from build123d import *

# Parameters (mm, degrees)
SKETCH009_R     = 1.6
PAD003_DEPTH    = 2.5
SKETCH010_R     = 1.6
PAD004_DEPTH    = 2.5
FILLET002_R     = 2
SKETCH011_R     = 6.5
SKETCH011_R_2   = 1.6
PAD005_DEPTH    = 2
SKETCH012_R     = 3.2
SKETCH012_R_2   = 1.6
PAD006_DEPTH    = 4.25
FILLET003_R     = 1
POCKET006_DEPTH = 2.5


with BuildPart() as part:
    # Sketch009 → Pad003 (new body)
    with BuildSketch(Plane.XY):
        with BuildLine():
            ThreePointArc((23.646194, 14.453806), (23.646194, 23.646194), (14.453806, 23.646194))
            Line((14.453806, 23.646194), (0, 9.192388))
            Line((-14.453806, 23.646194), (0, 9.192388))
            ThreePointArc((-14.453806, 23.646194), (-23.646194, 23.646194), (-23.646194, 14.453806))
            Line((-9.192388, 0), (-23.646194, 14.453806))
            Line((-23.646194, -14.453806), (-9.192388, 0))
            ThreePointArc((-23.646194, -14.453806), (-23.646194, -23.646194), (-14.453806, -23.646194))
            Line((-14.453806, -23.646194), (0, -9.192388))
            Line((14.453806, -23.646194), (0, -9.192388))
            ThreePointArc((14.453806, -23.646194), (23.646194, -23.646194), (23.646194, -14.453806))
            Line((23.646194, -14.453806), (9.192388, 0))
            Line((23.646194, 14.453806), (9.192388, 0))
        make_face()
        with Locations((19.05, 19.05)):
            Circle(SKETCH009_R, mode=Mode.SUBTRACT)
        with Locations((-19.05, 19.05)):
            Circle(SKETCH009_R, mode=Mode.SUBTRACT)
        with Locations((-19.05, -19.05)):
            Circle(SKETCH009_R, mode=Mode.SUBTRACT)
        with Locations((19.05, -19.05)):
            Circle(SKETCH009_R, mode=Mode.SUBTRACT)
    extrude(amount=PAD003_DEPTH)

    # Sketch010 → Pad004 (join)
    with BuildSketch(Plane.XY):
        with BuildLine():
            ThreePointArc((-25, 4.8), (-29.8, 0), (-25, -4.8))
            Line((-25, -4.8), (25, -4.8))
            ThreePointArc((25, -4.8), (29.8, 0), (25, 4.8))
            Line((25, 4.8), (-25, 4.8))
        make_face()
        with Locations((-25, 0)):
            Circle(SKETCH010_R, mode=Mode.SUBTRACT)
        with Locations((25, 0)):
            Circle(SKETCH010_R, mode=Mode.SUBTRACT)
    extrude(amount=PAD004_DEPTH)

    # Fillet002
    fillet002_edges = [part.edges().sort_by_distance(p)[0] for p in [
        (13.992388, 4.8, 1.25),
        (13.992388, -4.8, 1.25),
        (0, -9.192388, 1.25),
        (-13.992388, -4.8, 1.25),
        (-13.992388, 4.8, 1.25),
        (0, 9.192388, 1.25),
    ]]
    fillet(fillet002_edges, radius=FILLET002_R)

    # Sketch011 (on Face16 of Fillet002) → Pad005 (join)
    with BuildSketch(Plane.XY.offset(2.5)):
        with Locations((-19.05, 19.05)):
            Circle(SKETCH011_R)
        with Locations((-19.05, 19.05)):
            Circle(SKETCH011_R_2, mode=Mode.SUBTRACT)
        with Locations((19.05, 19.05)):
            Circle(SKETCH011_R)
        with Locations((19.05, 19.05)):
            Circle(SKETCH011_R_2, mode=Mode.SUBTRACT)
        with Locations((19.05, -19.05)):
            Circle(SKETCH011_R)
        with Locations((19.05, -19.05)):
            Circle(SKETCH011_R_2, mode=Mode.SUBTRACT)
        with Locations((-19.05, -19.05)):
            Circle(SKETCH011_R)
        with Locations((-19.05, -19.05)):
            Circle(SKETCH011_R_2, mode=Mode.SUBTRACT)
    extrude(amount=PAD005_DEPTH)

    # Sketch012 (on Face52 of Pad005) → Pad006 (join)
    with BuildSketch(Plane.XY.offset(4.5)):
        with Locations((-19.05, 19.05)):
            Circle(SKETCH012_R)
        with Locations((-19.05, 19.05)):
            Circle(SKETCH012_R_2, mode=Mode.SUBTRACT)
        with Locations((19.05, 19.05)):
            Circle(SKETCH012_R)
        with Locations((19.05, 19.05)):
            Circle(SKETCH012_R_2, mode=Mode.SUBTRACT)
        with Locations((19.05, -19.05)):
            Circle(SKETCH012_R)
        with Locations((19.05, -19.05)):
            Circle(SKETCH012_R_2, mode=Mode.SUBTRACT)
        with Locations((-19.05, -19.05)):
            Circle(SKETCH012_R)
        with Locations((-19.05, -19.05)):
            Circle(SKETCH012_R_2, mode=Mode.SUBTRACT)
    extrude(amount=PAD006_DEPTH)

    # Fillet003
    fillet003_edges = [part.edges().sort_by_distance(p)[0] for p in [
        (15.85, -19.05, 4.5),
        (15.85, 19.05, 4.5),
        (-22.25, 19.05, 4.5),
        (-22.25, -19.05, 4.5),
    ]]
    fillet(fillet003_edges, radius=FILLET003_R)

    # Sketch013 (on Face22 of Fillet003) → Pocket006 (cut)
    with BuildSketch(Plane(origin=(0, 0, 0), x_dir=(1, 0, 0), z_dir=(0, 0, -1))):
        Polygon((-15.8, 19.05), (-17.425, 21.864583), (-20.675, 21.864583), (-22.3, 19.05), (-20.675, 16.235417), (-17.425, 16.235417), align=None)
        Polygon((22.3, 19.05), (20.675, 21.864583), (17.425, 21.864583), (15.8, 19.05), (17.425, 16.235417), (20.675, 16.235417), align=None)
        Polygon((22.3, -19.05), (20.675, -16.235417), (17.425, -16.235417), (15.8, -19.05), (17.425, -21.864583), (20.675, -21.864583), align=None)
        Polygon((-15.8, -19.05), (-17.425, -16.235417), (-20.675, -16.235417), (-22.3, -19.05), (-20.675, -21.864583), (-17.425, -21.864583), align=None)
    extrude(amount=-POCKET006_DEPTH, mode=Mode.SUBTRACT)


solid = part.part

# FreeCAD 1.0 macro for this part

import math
import FreeCAD as App
import Part
import Sketcher
Q = App.Units.Quantity


def edges_at(feature, points):
    """Names of the edges that pass closest to the given points."""
    edges = feature.Shape.Edges
    near = lambda p: min(range(len(edges)), key=lambda i: edges[i].distToShape(Part.Vertex(*p))[0])
    return sorted({f"Edge{near(p) + 1}" for p in points})

doc = App.newDocument("Part")
body = doc.addObject("PartDesign::Body", "Body")

sketch1 = doc.addObject("Sketcher::SketchObject", "Sketch")
body.addObject(sketch1)
sketch1.AttachmentSupport = (doc.XY_Plane, [""])
sketch1.MapMode = "FlatFace"
sketch1.addGeometry([
    Part.ArcOfCircle(Part.Circle(App.Vector(19.1, 19.1, 0), App.Vector(0, 0, 1), 6.5), math.radians(-45), math.radians(135)),
    Part.LineSegment(App.Vector(14.5, 23.6, 0), App.Vector(0, 9.2, 0)),
    Part.LineSegment(App.Vector(0, 9.2, 0), App.Vector(-14.5, 23.6, 0)),
    Part.ArcOfCircle(Part.Circle(App.Vector(-19.1, 19.1, 0), App.Vector(0, 0, 1), 6.5), math.radians(45), math.radians(225)),
    Part.LineSegment(App.Vector(-23.6, 14.5, 0), App.Vector(-9.2, 0, 0)),
    Part.LineSegment(App.Vector(-9.2, 0, 0), App.Vector(-23.6, -14.5, 0)),
    Part.ArcOfCircle(Part.Circle(App.Vector(-19.1, -19.1, 0), App.Vector(0, 0, 1), 6.5), math.radians(135), math.radians(315)),
    Part.LineSegment(App.Vector(-14.5, -23.6, 0), App.Vector(0, -9.2, 0)),
    Part.LineSegment(App.Vector(0, -9.2, 0), App.Vector(14.5, -23.6, 0)),
    Part.ArcOfCircle(Part.Circle(App.Vector(19.1, -19.1, 0), App.Vector(0, 0, 1), 6.5), math.radians(-135), math.radians(45)),
    Part.LineSegment(App.Vector(23.6, -14.5, 0), App.Vector(9.2, 0, 0)),
    Part.LineSegment(App.Vector(9.2, 0, 0), App.Vector(23.6, 14.5, 0)),
    Part.Circle(App.Vector(-19.1, -19.1, 0), App.Vector(0, 0, 1), 1.6),
    Part.Circle(App.Vector(19.1, -19.1, 0), App.Vector(0, 0, 1), 1.6),
    Part.Circle(App.Vector(-19.1, 19.1, 0), App.Vector(0, 0, 1), 1.6),
    Part.Circle(App.Vector(19.1, 19.1, 0), App.Vector(0, 0, 1), 1.6),
], False)
sketch1.addConstraint([
    Sketcher.Constraint("Tangent", 0, 2, 1, 1),
    Sketcher.Constraint("Coincident", 1, 2, 2, 1),
    Sketcher.Constraint("Tangent", 2, 2, 3, 1),
    Sketcher.Constraint("Tangent", 3, 2, 4, 1),
    Sketcher.Constraint("Coincident", 4, 2, 5, 1),
    Sketcher.Constraint("Tangent", 5, 2, 6, 1),
    Sketcher.Constraint("Tangent", 6, 2, 7, 1),
    Sketcher.Constraint("Coincident", 7, 2, 8, 1),
    Sketcher.Constraint("Tangent", 8, 2, 9, 1),
    Sketcher.Constraint("Tangent", 9, 2, 10, 1),
    Sketcher.Constraint("Coincident", 10, 2, 11, 1),
    Sketcher.Constraint("Tangent", 11, 2, 0, 1),
    Sketcher.Constraint("Coincident", 12, 3, 6, 3),
    Sketcher.Constraint("Coincident", 13, 3, 9, 3),
    Sketcher.Constraint("Coincident", 14, 3, 3, 3),
    Sketcher.Constraint("Coincident", 15, 3, 0, 3),
    Sketcher.Constraint("Equal", 0, 3),
    Sketcher.Constraint("Equal", 3, 6),
    Sketcher.Constraint("Equal", 6, 9),
    Sketcher.Constraint("Equal", 12, 13),
    Sketcher.Constraint("Equal", 13, 14),
    Sketcher.Constraint("Equal", 14, 15),
    Sketcher.Constraint("Symmetric", 0, 3, 6, 3, -1, 1),
    Sketcher.Constraint("Symmetric", 3, 3, 9, 3, -1, 1),
    Sketcher.Constraint("Symmetric", 1, 2, 7, 2, -1, 1),
    Sketcher.Constraint("Symmetric", 4, 2, 10, 2, -1, 1),
    Sketcher.Constraint("Symmetric", 0, 3, 3, 3, -2),
    Sketcher.Constraint("PointOnObject", 1, 2, -2),
    Sketcher.Constraint("PointOnObject", 4, 2, -1),
    Sketcher.Constraint("Perpendicular", 1, 2),
    Sketcher.Constraint("Parallel", 2, 4),
    Sketcher.Constraint("Equal", 2, 4),
    Sketcher.Constraint("Diameter", 12, 3.2),
    Sketcher.Constraint("Radius", 0, 6.5),
    Sketcher.Constraint("DistanceX", 3, 3, 0, 3, 38.1),
])
pad1 = doc.addObject("PartDesign::Pad", "Pad")
body.addObject(pad1)
pad1.Profile = sketch1
pad1.Length = 2.5

sketch2 = doc.addObject("Sketcher::SketchObject", "Sketch001")
body.addObject(sketch2)
sketch2.AttachmentSupport = (doc.XY_Plane, [""])
sketch2.MapMode = "FlatFace"
sketch2.addGeometry([
    Part.ArcOfCircle(Part.Circle(App.Vector(-25, 0, 0), App.Vector(0, 0, 1), 4.8), math.radians(90), math.radians(270)),
    Part.LineSegment(App.Vector(-25, -4.8, 0), App.Vector(25, -4.8, 0)),
    Part.ArcOfCircle(Part.Circle(App.Vector(25, 0, 0), App.Vector(0, 0, 1), 4.8), math.radians(-90), math.radians(90)),
    Part.LineSegment(App.Vector(25, 4.8, 0), App.Vector(-25, 4.8, 0)),
    Part.Circle(App.Vector(-25, 0, 0), App.Vector(0, 0, 1), 1.6),
    Part.Circle(App.Vector(25, 0, 0), App.Vector(0, 0, 1), 1.6),
], False)
sketch2.addConstraint([
    Sketcher.Constraint("Tangent", 0, 2, 1, 1),
    Sketcher.Constraint("Tangent", 1, 2, 2, 1),
    Sketcher.Constraint("Tangent", 2, 2, 3, 1),
    Sketcher.Constraint("Tangent", 3, 2, 0, 1),
    Sketcher.Constraint("Horizontal", 1),
    Sketcher.Constraint("Horizontal", 3),
    Sketcher.Constraint("Coincident", 4, 3, 0, 3),
    Sketcher.Constraint("Coincident", 5, 3, 2, 3),
    Sketcher.Constraint("Equal", 4, 5),
    Sketcher.Constraint("Symmetric", 0, 3, 2, 3, -1, 1),
    Sketcher.Constraint("Diameter", 4, 3.2),
    Sketcher.Constraint("Radius", 0, 4.8),
    Sketcher.Constraint("DistanceX", 1, 1, 1, 2, 50.0),
])
pad2 = doc.addObject("PartDesign::Pad", "Pad001")
body.addObject(pad2)
pad2.Profile = sketch2
pad2.Length = 2.5
doc.recompute()

fillet = doc.addObject("PartDesign::Fillet", "Fillet")
body.addObject(fillet)
fillet.Base = (pad2, edges_at(pad2, [
    (13.992, 4.8, 1.25),
    (13.992, -4.8, 1.25),
    (0, -9.192, 1.25),
    (-13.992, -4.8, 1.25),
    (-13.992, 4.8, 1.25),
    (0, 9.192, 1.25),
]))
fillet.Radius = 2

sketch3 = doc.addObject("Sketcher::SketchObject", "Sketch002")
body.addObject(sketch3)
sketch3.AttachmentSupport = (doc.XY_Plane, [""])
sketch3.MapMode = "FlatFace"
sketch3.AttachmentOffset = App.Placement(App.Vector(0, 0, 2.5), App.Rotation())
sketch3.addGeometry([
    Part.Circle(App.Vector(-19.1, 19.1, 0), App.Vector(0, 0, 1), 6.5),
    Part.Circle(App.Vector(-19.1, 19.1, 0), App.Vector(0, 0, 1), 1.6),
    Part.Circle(App.Vector(19.1, 19.1, 0), App.Vector(0, 0, 1), 6.5),
    Part.Circle(App.Vector(19.1, 19.1, 0), App.Vector(0, 0, 1), 1.6),
    Part.Circle(App.Vector(19.1, -19.1, 0), App.Vector(0, 0, 1), 6.5),
    Part.Circle(App.Vector(19.1, -19.1, 0), App.Vector(0, 0, 1), 1.6),
    Part.Circle(App.Vector(-19.1, -19.1, 0), App.Vector(0, 0, 1), 6.5),
    Part.Circle(App.Vector(-19.1, -19.1, 0), App.Vector(0, 0, 1), 1.6),
], False)
sketch3.addConstraint([
    Sketcher.Constraint("Coincident", 1, 3, 0, 3),
    Sketcher.Constraint("Coincident", 3, 3, 2, 3),
    Sketcher.Constraint("Coincident", 5, 3, 4, 3),
    Sketcher.Constraint("Coincident", 7, 3, 6, 3),
    Sketcher.Constraint("Equal", 0, 2),
    Sketcher.Constraint("Equal", 1, 3),
    Sketcher.Constraint("Equal", 2, 4),
    Sketcher.Constraint("Equal", 3, 5),
    Sketcher.Constraint("Equal", 4, 6),
    Sketcher.Constraint("Equal", 5, 7),
    Sketcher.Constraint("Symmetric", 0, 3, 4, 3, -1, 1),
    Sketcher.Constraint("Symmetric", 2, 3, 6, 3, -1, 1),
    Sketcher.Constraint("Symmetric", 0, 3, 2, 3, -2),
    Sketcher.Constraint("Diameter", 0, 13.0),
    Sketcher.Constraint("Diameter", 1, 3.2),
    Sketcher.Constraint("DistanceX", 0, 3, 2, 3, 38.1),
    Sketcher.Constraint("DistanceY", 4, 3, 2, 3, 38.1),
])
pad3 = doc.addObject("PartDesign::Pad", "Pad002")
body.addObject(pad3)
pad3.Profile = sketch3
pad3.Length = 2

sketch4 = doc.addObject("Sketcher::SketchObject", "Sketch003")
body.addObject(sketch4)
sketch4.AttachmentSupport = (doc.XY_Plane, [""])
sketch4.MapMode = "FlatFace"
sketch4.AttachmentOffset = App.Placement(App.Vector(0, 0, 4.5), App.Rotation())
sketch4.addGeometry([
    Part.Circle(App.Vector(-19.1, 19.1, 0), App.Vector(0, 0, 1), 3.2),
    Part.Circle(App.Vector(-19.1, 19.1, 0), App.Vector(0, 0, 1), 1.6),
    Part.Circle(App.Vector(19.1, 19.1, 0), App.Vector(0, 0, 1), 3.2),
    Part.Circle(App.Vector(19.1, 19.1, 0), App.Vector(0, 0, 1), 1.6),
    Part.Circle(App.Vector(19.1, -19.1, 0), App.Vector(0, 0, 1), 3.2),
    Part.Circle(App.Vector(19.1, -19.1, 0), App.Vector(0, 0, 1), 1.6),
    Part.Circle(App.Vector(-19.1, -19.1, 0), App.Vector(0, 0, 1), 3.2),
    Part.Circle(App.Vector(-19.1, -19.1, 0), App.Vector(0, 0, 1), 1.6),
], False)
sketch4.addConstraint([
    Sketcher.Constraint("Coincident", 1, 3, 0, 3),
    Sketcher.Constraint("Coincident", 3, 3, 2, 3),
    Sketcher.Constraint("Coincident", 5, 3, 4, 3),
    Sketcher.Constraint("Coincident", 7, 3, 6, 3),
    Sketcher.Constraint("Equal", 0, 2),
    Sketcher.Constraint("Equal", 1, 3),
    Sketcher.Constraint("Equal", 2, 4),
    Sketcher.Constraint("Equal", 3, 5),
    Sketcher.Constraint("Equal", 4, 6),
    Sketcher.Constraint("Equal", 5, 7),
    Sketcher.Constraint("Symmetric", 0, 3, 4, 3, -1, 1),
    Sketcher.Constraint("Symmetric", 2, 3, 6, 3, -1, 1),
    Sketcher.Constraint("Symmetric", 0, 3, 2, 3, -2),
    Sketcher.Constraint("Diameter", 0, 6.4),
    Sketcher.Constraint("Diameter", 1, 3.2),
    Sketcher.Constraint("DistanceX", 0, 3, 2, 3, 38.1),
    Sketcher.Constraint("DistanceY", 4, 3, 2, 3, 38.1),
])
pad4 = doc.addObject("PartDesign::Pad", "Pad003")
body.addObject(pad4)
pad4.Profile = sketch4
pad4.Length = 4.25
doc.recompute()

fillet2 = doc.addObject("PartDesign::Fillet", "Fillet001")
body.addObject(fillet2)
fillet2.Base = (pad4, edges_at(pad4, [
    (15.85, -19.05, 4.5),
    (15.85, 19.05, 4.5),
    (-22.25, 19.05, 4.5),
    (-22.25, -19.05, 4.5),
]))
fillet2.Radius = 1

sketch5 = doc.addObject("Sketcher::SketchObject", "Sketch004")
body.addObject(sketch5)
sketch5.AttachmentSupport = (doc.XY_Plane, [""])
sketch5.MapMode = "FlatFace"
sketch5.addGeometry([
    Part.LineSegment(App.Vector(-15.8, -19.1, 0), App.Vector(-17.4, -21.9, 0)),
    Part.LineSegment(App.Vector(-17.4, -21.9, 0), App.Vector(-20.7, -21.9, 0)),
    Part.LineSegment(App.Vector(-20.7, -21.9, 0), App.Vector(-22.3, -19.1, 0)),
    Part.LineSegment(App.Vector(-22.3, -19.1, 0), App.Vector(-20.7, -16.2, 0)),
    Part.LineSegment(App.Vector(-20.7, -16.2, 0), App.Vector(-17.4, -16.2, 0)),
    Part.LineSegment(App.Vector(-17.4, -16.2, 0), App.Vector(-15.8, -19.1, 0)),
    Part.LineSegment(App.Vector(22.3, -19.1, 0), App.Vector(20.7, -21.9, 0)),
    Part.LineSegment(App.Vector(20.7, -21.9, 0), App.Vector(17.4, -21.9, 0)),
    Part.LineSegment(App.Vector(17.4, -21.9, 0), App.Vector(15.8, -19.1, 0)),
    Part.LineSegment(App.Vector(15.8, -19.1, 0), App.Vector(17.4, -16.2, 0)),
    Part.LineSegment(App.Vector(17.4, -16.2, 0), App.Vector(20.7, -16.2, 0)),
    Part.LineSegment(App.Vector(20.7, -16.2, 0), App.Vector(22.3, -19.1, 0)),
    Part.LineSegment(App.Vector(22.3, 19.1, 0), App.Vector(20.7, 16.2, 0)),
    Part.LineSegment(App.Vector(20.7, 16.2, 0), App.Vector(17.4, 16.2, 0)),
    Part.LineSegment(App.Vector(17.4, 16.2, 0), App.Vector(15.8, 19.1, 0)),
    Part.LineSegment(App.Vector(15.8, 19.1, 0), App.Vector(17.4, 21.9, 0)),
    Part.LineSegment(App.Vector(17.4, 21.9, 0), App.Vector(20.7, 21.9, 0)),
    Part.LineSegment(App.Vector(20.7, 21.9, 0), App.Vector(22.3, 19.1, 0)),
    Part.LineSegment(App.Vector(-15.8, 19.1, 0), App.Vector(-17.4, 16.2, 0)),
    Part.LineSegment(App.Vector(-17.4, 16.2, 0), App.Vector(-20.7, 16.2, 0)),
    Part.LineSegment(App.Vector(-20.7, 16.2, 0), App.Vector(-22.3, 19.1, 0)),
    Part.LineSegment(App.Vector(-22.3, 19.1, 0), App.Vector(-20.7, 21.9, 0)),
    Part.LineSegment(App.Vector(-20.7, 21.9, 0), App.Vector(-17.4, 21.9, 0)),
    Part.LineSegment(App.Vector(-17.4, 21.9, 0), App.Vector(-15.8, 19.1, 0)),
], False)
sketch5.addConstraint([
    Sketcher.Constraint("Coincident", 0, 2, 1, 1),
    Sketcher.Constraint("Coincident", 1, 2, 2, 1),
    Sketcher.Constraint("Coincident", 2, 2, 3, 1),
    Sketcher.Constraint("Coincident", 3, 2, 4, 1),
    Sketcher.Constraint("Coincident", 4, 2, 5, 1),
    Sketcher.Constraint("Coincident", 5, 2, 0, 1),
    Sketcher.Constraint("Coincident", 6, 2, 7, 1),
    Sketcher.Constraint("Coincident", 7, 2, 8, 1),
    Sketcher.Constraint("Coincident", 8, 2, 9, 1),
    Sketcher.Constraint("Coincident", 9, 2, 10, 1),
    Sketcher.Constraint("Coincident", 10, 2, 11, 1),
    Sketcher.Constraint("Coincident", 11, 2, 6, 1),
    Sketcher.Constraint("Coincident", 12, 2, 13, 1),
    Sketcher.Constraint("Coincident", 13, 2, 14, 1),
    Sketcher.Constraint("Coincident", 14, 2, 15, 1),
    Sketcher.Constraint("Coincident", 15, 2, 16, 1),
    Sketcher.Constraint("Coincident", 16, 2, 17, 1),
    Sketcher.Constraint("Coincident", 17, 2, 12, 1),
    Sketcher.Constraint("Coincident", 18, 2, 19, 1),
    Sketcher.Constraint("Coincident", 19, 2, 20, 1),
    Sketcher.Constraint("Coincident", 20, 2, 21, 1),
    Sketcher.Constraint("Coincident", 21, 2, 22, 1),
    Sketcher.Constraint("Coincident", 22, 2, 23, 1),
    Sketcher.Constraint("Coincident", 23, 2, 18, 1),
    Sketcher.Constraint("Horizontal", 1),
    Sketcher.Constraint("Horizontal", 4),
    Sketcher.Constraint("Horizontal", 7),
    Sketcher.Constraint("Horizontal", 10),
    Sketcher.Constraint("Horizontal", 13),
    Sketcher.Constraint("Horizontal", 16),
    Sketcher.Constraint("Horizontal", 19),
    Sketcher.Constraint("Horizontal", 22),
    Sketcher.Constraint("Symmetric", 3, 2, 12, 2, -1, 1),
    Sketcher.Constraint("Symmetric", 5, 2, 14, 2, -1, 1),
    Sketcher.Constraint("Symmetric", 0, 2, 15, 2, -1, 1),
    Sketcher.Constraint("Symmetric", 2, 2, 17, 2, -1, 1),
    Sketcher.Constraint("Symmetric", 9, 2, 18, 2, -1, 1),
    Sketcher.Constraint("Symmetric", 11, 2, 20, 2, -1, 1),
    Sketcher.Constraint("Symmetric", 6, 2, 21, 2, -1, 1),
    Sketcher.Constraint("Symmetric", 8, 2, 23, 2, -1, 1),
    Sketcher.Constraint("Symmetric", 1, 2, 6, 2, -2),
    Sketcher.Constraint("Symmetric", 5, 2, 8, 2, -2),
    Sketcher.Constraint("Symmetric", 4, 2, 9, 2, -2),
    Sketcher.Constraint("Symmetric", 2, 2, 11, 2, -2),
    Sketcher.Constraint("Parallel", 0, 3),
    Sketcher.Constraint("Parallel", 2, 5),
    Sketcher.Constraint("Parallel", 3, 6),
    Sketcher.Constraint("Parallel", 5, 8),
    Sketcher.Constraint("Parallel", 8, 11),
    Sketcher.Constraint("Parallel", 11, 14),
    Sketcher.Constraint("Parallel", 14, 17),
    Sketcher.Constraint("Parallel", 17, 20),
    Sketcher.Constraint("Parallel", 20, 23),
    Sketcher.Constraint("Horizontal", 2, 2, 5, 2),
    Sketcher.Constraint("Vertical", 1, 2, 3, 2),
    Sketcher.Constraint("Angle", 0, Q("-119.999996 deg")),
    Sketcher.Constraint("DistanceX", 1, 2, 1, 1, 3.25),
    Sketcher.Constraint("DistanceX", 2, 2, -1, 1, 22.3),
    Sketcher.Constraint("DistanceX", 5, 2, -1, 1, 15.8),
    Sketcher.Constraint("DistanceY", 6, 2, 12, 2, 38.1),
])
pocket1 = doc.addObject("PartDesign::Pocket", "Pocket")
body.addObject(pocket1)
pocket1.Profile = sketch5
pocket1.Length = 2.5
pocket1.Reversed = True

doc.recompute()
